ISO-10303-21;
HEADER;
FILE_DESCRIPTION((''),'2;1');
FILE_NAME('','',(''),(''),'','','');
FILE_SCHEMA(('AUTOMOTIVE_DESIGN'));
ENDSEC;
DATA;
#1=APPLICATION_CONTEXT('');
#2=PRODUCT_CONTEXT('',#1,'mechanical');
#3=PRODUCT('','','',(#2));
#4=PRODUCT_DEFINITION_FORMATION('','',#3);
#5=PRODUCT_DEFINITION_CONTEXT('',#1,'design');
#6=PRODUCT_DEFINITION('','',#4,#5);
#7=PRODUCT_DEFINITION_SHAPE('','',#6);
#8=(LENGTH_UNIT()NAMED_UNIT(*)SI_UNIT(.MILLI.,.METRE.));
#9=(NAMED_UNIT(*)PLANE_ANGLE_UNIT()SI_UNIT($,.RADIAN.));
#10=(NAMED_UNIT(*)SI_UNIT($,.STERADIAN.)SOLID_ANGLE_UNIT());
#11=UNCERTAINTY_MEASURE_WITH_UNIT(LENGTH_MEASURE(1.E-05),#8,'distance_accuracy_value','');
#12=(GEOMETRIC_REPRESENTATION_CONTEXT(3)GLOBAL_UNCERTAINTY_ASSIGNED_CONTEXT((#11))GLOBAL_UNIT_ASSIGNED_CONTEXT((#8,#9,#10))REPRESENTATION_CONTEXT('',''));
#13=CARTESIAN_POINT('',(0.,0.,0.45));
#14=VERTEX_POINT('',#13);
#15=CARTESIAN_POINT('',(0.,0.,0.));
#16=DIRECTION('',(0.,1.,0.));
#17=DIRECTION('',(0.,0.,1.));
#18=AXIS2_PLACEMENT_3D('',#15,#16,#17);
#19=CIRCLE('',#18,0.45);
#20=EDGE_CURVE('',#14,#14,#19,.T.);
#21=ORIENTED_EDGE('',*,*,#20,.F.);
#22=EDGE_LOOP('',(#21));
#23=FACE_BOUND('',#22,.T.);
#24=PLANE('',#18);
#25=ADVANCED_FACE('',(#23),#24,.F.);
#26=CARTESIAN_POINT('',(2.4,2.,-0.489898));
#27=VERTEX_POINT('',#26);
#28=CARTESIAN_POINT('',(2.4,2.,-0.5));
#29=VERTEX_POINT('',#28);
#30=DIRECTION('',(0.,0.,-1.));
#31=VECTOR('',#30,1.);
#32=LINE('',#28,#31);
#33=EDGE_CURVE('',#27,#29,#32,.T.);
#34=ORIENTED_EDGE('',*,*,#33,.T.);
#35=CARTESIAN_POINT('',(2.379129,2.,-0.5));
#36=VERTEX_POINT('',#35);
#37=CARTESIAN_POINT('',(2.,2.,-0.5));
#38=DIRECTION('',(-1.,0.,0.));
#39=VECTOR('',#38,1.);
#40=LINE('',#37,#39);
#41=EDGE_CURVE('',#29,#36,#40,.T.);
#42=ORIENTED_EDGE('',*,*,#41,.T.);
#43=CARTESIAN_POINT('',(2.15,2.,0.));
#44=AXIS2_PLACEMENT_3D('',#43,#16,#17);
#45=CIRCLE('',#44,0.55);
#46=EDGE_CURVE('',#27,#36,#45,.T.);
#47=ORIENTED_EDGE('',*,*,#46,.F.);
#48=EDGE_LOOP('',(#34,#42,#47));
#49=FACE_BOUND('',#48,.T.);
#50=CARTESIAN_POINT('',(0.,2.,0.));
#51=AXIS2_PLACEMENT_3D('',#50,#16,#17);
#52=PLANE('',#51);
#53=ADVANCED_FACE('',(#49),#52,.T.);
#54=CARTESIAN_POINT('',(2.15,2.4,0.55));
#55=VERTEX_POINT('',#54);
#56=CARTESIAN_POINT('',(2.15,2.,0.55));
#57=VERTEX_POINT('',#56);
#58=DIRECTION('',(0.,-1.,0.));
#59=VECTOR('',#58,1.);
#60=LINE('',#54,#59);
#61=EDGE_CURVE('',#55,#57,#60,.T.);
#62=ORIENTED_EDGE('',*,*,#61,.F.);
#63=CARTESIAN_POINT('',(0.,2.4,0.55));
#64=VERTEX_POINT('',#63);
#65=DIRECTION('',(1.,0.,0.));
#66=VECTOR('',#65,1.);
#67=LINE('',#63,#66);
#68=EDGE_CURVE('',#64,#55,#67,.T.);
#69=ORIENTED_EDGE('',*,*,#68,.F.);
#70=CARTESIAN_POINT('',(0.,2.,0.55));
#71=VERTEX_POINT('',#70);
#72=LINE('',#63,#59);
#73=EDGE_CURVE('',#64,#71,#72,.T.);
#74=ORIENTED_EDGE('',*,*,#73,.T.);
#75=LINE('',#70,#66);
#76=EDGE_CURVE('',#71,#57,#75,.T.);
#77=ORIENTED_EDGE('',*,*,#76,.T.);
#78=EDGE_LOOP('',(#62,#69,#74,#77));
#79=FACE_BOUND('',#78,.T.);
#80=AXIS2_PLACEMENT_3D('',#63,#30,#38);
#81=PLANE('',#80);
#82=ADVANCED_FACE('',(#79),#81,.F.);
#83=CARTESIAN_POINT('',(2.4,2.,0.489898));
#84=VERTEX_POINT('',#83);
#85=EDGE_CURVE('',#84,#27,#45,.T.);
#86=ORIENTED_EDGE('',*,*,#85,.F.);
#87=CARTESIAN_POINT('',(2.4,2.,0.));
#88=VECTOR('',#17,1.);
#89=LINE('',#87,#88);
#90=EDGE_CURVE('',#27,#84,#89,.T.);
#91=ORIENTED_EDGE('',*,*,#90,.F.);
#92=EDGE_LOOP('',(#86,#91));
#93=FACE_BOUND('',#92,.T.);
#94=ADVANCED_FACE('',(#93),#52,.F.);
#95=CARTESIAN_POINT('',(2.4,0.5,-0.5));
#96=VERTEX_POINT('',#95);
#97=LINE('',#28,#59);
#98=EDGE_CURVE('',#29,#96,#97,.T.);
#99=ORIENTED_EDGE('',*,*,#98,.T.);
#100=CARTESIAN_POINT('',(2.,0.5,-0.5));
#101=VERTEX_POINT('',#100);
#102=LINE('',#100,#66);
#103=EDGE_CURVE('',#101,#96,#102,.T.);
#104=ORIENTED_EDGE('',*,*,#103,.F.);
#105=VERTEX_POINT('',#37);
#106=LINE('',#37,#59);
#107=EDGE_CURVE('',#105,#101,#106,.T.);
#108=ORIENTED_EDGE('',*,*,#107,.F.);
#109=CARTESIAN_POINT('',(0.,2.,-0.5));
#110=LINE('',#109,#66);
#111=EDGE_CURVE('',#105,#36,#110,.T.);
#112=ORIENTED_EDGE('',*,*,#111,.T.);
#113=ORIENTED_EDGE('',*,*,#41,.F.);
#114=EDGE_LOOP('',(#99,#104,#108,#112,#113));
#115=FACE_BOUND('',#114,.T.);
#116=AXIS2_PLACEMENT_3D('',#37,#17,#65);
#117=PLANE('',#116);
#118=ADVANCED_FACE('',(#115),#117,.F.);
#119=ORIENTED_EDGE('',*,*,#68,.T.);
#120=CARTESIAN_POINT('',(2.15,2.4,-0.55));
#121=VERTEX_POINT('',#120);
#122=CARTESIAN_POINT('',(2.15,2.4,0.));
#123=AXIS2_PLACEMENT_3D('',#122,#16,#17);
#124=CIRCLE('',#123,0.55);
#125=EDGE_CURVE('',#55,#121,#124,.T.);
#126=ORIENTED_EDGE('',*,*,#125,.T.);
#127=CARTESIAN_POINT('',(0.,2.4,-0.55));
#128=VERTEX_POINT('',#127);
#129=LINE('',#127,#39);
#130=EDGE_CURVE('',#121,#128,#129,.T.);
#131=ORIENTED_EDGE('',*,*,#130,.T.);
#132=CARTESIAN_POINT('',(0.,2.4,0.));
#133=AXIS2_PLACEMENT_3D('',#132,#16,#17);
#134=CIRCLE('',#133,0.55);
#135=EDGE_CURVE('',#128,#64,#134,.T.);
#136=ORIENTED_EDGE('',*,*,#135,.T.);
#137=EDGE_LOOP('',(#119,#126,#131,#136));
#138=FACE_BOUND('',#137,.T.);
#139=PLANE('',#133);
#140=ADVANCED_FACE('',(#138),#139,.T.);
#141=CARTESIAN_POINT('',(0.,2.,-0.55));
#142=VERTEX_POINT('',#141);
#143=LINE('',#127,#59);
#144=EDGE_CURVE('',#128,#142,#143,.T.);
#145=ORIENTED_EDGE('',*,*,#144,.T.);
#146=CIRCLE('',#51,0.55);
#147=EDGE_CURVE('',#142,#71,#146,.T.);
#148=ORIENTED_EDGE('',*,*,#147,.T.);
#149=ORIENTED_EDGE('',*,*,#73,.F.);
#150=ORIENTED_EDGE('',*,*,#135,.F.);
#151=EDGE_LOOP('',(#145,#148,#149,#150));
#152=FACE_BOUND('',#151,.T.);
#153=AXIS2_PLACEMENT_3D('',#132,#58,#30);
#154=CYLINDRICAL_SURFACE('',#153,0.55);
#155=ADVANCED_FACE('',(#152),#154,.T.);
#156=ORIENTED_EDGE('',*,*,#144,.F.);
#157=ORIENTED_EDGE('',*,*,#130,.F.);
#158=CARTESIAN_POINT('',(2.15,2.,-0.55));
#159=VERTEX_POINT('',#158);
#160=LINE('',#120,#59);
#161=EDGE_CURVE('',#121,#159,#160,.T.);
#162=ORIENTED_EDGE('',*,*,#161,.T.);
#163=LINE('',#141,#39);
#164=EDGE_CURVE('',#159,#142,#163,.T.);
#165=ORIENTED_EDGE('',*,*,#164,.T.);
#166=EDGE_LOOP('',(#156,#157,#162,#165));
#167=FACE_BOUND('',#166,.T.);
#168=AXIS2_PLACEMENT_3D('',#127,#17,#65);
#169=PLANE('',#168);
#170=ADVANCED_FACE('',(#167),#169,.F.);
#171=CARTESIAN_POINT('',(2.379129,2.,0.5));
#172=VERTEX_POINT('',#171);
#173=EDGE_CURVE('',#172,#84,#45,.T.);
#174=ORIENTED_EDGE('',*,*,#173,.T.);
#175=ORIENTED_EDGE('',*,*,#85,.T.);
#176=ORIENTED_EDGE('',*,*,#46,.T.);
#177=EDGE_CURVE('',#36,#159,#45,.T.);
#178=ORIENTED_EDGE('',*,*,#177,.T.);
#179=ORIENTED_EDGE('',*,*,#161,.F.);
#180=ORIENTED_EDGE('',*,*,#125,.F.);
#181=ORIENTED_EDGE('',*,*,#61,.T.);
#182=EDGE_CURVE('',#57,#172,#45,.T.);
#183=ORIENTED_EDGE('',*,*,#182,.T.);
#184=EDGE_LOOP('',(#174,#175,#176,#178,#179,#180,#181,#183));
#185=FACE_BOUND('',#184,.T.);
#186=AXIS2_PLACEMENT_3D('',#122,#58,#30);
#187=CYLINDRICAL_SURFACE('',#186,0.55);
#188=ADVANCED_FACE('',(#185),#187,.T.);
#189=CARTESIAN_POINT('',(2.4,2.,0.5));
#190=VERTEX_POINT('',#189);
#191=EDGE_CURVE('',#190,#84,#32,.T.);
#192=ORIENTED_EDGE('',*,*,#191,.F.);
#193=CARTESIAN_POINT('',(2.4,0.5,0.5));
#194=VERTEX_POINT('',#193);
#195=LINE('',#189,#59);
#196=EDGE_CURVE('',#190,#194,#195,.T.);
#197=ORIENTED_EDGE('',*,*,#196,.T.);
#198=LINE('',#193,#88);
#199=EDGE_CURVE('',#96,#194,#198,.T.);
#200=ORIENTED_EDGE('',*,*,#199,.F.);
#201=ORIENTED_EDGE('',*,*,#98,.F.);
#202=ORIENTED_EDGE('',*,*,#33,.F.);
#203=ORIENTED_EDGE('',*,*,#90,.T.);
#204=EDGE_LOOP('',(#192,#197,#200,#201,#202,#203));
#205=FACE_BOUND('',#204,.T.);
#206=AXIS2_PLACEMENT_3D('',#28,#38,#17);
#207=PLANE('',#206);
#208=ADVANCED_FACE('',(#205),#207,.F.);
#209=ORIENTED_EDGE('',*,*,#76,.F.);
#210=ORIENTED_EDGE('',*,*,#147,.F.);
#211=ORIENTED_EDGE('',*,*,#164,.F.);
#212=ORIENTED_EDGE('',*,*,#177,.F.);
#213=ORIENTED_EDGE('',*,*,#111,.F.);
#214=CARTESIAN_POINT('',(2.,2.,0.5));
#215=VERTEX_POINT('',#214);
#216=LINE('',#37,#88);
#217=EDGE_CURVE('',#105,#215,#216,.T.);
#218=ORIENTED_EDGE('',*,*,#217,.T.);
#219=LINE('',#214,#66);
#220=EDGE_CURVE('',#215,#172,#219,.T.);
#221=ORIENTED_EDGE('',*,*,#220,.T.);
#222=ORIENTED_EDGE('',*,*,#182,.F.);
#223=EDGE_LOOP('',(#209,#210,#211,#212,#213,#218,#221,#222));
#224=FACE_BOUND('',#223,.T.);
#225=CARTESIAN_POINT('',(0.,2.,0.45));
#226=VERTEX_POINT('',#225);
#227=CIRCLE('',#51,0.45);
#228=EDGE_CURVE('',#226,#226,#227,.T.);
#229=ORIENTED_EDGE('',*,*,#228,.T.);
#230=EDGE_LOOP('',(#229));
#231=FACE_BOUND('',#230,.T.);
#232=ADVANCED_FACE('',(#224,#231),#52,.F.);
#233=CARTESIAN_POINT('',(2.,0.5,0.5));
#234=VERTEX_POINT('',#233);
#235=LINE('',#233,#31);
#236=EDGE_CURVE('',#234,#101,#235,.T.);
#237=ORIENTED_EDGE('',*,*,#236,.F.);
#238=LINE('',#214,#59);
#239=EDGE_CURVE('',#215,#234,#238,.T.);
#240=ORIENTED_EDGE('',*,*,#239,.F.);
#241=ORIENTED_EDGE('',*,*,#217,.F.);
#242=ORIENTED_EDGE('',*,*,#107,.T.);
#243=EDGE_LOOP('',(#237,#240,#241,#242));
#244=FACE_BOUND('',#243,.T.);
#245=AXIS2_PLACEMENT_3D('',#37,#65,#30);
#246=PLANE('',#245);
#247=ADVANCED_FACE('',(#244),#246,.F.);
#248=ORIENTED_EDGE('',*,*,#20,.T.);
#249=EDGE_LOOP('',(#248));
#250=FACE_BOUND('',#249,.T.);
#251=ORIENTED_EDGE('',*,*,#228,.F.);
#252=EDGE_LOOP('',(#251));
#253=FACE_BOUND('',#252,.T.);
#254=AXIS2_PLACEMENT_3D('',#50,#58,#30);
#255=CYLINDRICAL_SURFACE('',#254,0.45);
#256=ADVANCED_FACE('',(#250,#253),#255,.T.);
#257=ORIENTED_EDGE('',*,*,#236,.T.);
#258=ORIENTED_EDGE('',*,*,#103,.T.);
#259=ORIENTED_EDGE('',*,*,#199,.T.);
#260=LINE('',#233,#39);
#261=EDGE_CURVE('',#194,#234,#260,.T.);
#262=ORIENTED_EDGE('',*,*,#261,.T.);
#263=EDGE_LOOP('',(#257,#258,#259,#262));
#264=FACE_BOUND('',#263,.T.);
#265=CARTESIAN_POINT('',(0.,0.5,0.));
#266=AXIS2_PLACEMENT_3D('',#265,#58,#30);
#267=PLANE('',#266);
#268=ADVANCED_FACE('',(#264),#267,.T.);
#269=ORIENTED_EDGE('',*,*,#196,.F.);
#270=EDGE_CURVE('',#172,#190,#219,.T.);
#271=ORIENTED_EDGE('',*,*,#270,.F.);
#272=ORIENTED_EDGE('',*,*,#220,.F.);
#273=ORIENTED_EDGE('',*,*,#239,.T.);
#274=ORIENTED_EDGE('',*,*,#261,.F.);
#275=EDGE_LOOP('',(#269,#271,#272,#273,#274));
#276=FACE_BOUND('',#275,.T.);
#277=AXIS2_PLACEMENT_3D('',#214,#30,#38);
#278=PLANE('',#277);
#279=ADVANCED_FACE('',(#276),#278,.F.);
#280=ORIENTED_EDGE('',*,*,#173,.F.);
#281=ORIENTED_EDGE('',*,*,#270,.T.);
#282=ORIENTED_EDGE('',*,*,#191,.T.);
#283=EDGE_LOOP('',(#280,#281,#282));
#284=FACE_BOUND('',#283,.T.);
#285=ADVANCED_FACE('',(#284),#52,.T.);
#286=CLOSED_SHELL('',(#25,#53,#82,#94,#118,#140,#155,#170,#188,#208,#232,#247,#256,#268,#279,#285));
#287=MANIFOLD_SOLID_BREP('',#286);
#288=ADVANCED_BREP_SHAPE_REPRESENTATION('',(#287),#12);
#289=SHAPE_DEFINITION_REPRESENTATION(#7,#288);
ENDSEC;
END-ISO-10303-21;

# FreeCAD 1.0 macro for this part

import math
import FreeCAD as App
import Part
import Sketcher
from FreeCAD import Vector
Q = App.Units.Quantity

doc = App.newDocument("Part")
body = doc.addObject("PartDesign::Body", "Body")

# Sketch on XZ plane
sketch1 = body.newObject("Sketcher::SketchObject", "Sketch")
sketch1.AttachmentSupport = (doc.getObject("XZ_Plane"), [""])
sketch1.MapMode = "FlatFace"
sketch1.addGeometry(Part.Circle(Vector(0, 0, 0), Vector(0, 0, 1), 0.45), False)
sketch1.addConstraint([
    Sketcher.Constraint("Coincident", 0, 3, -1, 1),
    Sketcher.Constraint("Diameter", 0, Q("0.9 mm")),
])
pad1 = body.newObject("PartDesign::Pad", "Pad")
pad1.Profile = sketch1
pad1.Length = 2
pad1.Reversed = True
body2 = doc.addObject("PartDesign::Body", "Body001")

# Sketch on XZ plane
sketch2 = body2.newObject("Sketcher::SketchObject", "Sketch001")
sketch2.AttachmentSupport = (doc.getObject("XZ_Plane001"), [""])
sketch2.MapMode = "FlatFace"
sketch2.addGeometry([
    Part.LineSegment(Vector(2, -0.5, 0), Vector(2, 0.5, 0)),
    Part.LineSegment(Vector(2, 0.5, 0), Vector(2.4, 0.5, 0)),
    Part.LineSegment(Vector(2.4, 0.5, 0), Vector(2.4, -0.5, 0)),
    Part.LineSegment(Vector(2.4, -0.5, 0), Vector(2, -0.5, 0)),
], False)
sketch2.addConstraint([
    Sketcher.Constraint("Coincident", 0, 2, 1, 1),
    Sketcher.Constraint("Coincident", 1, 2, 2, 1),
    Sketcher.Constraint("Coincident", 2, 2, 3, 1),
    Sketcher.Constraint("Coincident", 3, 2, 0, 1),
    Sketcher.Constraint("Vertical", 0),
    Sketcher.Constraint("Horizontal", 1),
    Sketcher.Constraint("Vertical", 2),
    Sketcher.Constraint("Horizontal", 3),
    Sketcher.Constraint("DistanceY", 0, 1, 0, 2, Q("1 mm")),
    Sketcher.Constraint("DistanceX", 1, 1, 1, 2, Q("0.4 mm")),
    Sketcher.Constraint("DistanceX", -1, 1, 0, 2, Q("2 mm")),
    Sketcher.Constraint("DistanceY", -1, 1, 0, 2, Q("0.5 mm")),
])
pad2 = body2.newObject("PartDesign::Pad", "Pad001")
pad2.Profile = sketch2
pad2.Length = 2
pad2.Reversed = True
body.AllowCompound = True
doc.recompute()

boolean = body.newObject("PartDesign::Boolean", "Boolean")
boolean.Type = "Fuse"
boolean.addObjects([body2])

# Sketch on XZ plane
sketch3 = body.newObject("Sketcher::SketchObject", "Sketch002")
sketch3.AttachmentSupport = (doc.getObject("XZ_Plane"), [""])
sketch3.MapMode = "FlatFace"
sketch3.AttachmentOffset = App.Placement(Vector(0, 0, -2), App.Rotation())
sketch3.addGeometry([
    Part.LineSegment(Vector(2.1, -0.6, 0), Vector(0, -0.6, 0)),
    Part.ArcOfCircle(Part.Circle(Vector(0, 0, 0), Vector(0, 0, 1), 0.6), math.radians(90), math.radians(270)),
    Part.LineSegment(Vector(0, 0.6, 0), Vector(2.1, 0.6, 0)),
    Part.ArcOfCircle(Part.Circle(Vector(2.1, 0, 0), Vector(0, 0, 1), 0.6), math.radians(-90), math.radians(90)),
], False)
sketch3.addConstraint([
    Sketcher.Constraint("Tangent", 0, 2, 1, 2),
    Sketcher.Constraint("Tangent", 1, 1, 2, 1),
    Sketcher.Constraint("Tangent", 2, 2, 3, 2),
    Sketcher.Constraint("Tangent", 3, 1, 0, 1),
    Sketcher.Constraint("Horizontal", 0),
    Sketcher.Constraint("Horizontal", 2),
    Sketcher.Constraint("Coincident", 1, 3, -1, 1),
    Sketcher.Constraint("Radius", 1, Q("0.55 mm")),
    Sketcher.Constraint("DistanceX", 0, 2, 0, 1, Q("2.15 mm")),
])
pad3 = body.newObject("PartDesign::Pad", "Pad002")
pad3.Profile = sketch3
pad3.Length = 0.4
pad3.Reversed = True

# Sketch on XZ plane
sketch4 = body.newObject("Sketcher::SketchObject", "Sketch003")
sketch4.AttachmentSupport = (doc.getObject("XZ_Plane"), [""])
sketch4.MapMode = "FlatFace"
sketch4.addGeometry([
    Part.LineSegment(Vector(2, 0.5, 0), Vector(2, -0.5, 0)),
    Part.LineSegment(Vector(2, -0.5, 0), Vector(2.4, -0.5, 0)),
    Part.LineSegment(Vector(2.4, -0.5, 0), Vector(2.4, 0.5, 0)),
    Part.LineSegment(Vector(2.4, 0.5, 0), Vector(2, 0.5, 0)),
], False)
sketch4.addConstraint([
    Sketcher.Constraint("Coincident", 0, 2, 1, 1),
    Sketcher.Constraint("Coincident", 1, 2, 2, 1),
    Sketcher.Constraint("Coincident", 2, 2, 3, 1),
    Sketcher.Constraint("Coincident", 3, 2, 0, 1),
    Sketcher.Constraint("Vertical", 0),
    Sketcher.Constraint("Horizontal", 1),
    Sketcher.Constraint("Vertical", 2),
    Sketcher.Constraint("Horizontal", 3),
    Sketcher.Constraint("DistanceY", 0, 2, 0, 1, Q("1 mm")),
    Sketcher.Constraint("DistanceX", 1, 1, 1, 2, Q("0.4 mm")),
    Sketcher.Constraint("DistanceX", -1, 1, 0, 2, Q("2 mm")),
    Sketcher.Constraint("DistanceY", 0, 2, -1, 1, Q("0.5 mm")),
])
pocket1 = body.newObject("PartDesign::Pocket", "Pocket")
pocket1.Profile = sketch4
pocket1.Length = 0.5

doc.recompute()
